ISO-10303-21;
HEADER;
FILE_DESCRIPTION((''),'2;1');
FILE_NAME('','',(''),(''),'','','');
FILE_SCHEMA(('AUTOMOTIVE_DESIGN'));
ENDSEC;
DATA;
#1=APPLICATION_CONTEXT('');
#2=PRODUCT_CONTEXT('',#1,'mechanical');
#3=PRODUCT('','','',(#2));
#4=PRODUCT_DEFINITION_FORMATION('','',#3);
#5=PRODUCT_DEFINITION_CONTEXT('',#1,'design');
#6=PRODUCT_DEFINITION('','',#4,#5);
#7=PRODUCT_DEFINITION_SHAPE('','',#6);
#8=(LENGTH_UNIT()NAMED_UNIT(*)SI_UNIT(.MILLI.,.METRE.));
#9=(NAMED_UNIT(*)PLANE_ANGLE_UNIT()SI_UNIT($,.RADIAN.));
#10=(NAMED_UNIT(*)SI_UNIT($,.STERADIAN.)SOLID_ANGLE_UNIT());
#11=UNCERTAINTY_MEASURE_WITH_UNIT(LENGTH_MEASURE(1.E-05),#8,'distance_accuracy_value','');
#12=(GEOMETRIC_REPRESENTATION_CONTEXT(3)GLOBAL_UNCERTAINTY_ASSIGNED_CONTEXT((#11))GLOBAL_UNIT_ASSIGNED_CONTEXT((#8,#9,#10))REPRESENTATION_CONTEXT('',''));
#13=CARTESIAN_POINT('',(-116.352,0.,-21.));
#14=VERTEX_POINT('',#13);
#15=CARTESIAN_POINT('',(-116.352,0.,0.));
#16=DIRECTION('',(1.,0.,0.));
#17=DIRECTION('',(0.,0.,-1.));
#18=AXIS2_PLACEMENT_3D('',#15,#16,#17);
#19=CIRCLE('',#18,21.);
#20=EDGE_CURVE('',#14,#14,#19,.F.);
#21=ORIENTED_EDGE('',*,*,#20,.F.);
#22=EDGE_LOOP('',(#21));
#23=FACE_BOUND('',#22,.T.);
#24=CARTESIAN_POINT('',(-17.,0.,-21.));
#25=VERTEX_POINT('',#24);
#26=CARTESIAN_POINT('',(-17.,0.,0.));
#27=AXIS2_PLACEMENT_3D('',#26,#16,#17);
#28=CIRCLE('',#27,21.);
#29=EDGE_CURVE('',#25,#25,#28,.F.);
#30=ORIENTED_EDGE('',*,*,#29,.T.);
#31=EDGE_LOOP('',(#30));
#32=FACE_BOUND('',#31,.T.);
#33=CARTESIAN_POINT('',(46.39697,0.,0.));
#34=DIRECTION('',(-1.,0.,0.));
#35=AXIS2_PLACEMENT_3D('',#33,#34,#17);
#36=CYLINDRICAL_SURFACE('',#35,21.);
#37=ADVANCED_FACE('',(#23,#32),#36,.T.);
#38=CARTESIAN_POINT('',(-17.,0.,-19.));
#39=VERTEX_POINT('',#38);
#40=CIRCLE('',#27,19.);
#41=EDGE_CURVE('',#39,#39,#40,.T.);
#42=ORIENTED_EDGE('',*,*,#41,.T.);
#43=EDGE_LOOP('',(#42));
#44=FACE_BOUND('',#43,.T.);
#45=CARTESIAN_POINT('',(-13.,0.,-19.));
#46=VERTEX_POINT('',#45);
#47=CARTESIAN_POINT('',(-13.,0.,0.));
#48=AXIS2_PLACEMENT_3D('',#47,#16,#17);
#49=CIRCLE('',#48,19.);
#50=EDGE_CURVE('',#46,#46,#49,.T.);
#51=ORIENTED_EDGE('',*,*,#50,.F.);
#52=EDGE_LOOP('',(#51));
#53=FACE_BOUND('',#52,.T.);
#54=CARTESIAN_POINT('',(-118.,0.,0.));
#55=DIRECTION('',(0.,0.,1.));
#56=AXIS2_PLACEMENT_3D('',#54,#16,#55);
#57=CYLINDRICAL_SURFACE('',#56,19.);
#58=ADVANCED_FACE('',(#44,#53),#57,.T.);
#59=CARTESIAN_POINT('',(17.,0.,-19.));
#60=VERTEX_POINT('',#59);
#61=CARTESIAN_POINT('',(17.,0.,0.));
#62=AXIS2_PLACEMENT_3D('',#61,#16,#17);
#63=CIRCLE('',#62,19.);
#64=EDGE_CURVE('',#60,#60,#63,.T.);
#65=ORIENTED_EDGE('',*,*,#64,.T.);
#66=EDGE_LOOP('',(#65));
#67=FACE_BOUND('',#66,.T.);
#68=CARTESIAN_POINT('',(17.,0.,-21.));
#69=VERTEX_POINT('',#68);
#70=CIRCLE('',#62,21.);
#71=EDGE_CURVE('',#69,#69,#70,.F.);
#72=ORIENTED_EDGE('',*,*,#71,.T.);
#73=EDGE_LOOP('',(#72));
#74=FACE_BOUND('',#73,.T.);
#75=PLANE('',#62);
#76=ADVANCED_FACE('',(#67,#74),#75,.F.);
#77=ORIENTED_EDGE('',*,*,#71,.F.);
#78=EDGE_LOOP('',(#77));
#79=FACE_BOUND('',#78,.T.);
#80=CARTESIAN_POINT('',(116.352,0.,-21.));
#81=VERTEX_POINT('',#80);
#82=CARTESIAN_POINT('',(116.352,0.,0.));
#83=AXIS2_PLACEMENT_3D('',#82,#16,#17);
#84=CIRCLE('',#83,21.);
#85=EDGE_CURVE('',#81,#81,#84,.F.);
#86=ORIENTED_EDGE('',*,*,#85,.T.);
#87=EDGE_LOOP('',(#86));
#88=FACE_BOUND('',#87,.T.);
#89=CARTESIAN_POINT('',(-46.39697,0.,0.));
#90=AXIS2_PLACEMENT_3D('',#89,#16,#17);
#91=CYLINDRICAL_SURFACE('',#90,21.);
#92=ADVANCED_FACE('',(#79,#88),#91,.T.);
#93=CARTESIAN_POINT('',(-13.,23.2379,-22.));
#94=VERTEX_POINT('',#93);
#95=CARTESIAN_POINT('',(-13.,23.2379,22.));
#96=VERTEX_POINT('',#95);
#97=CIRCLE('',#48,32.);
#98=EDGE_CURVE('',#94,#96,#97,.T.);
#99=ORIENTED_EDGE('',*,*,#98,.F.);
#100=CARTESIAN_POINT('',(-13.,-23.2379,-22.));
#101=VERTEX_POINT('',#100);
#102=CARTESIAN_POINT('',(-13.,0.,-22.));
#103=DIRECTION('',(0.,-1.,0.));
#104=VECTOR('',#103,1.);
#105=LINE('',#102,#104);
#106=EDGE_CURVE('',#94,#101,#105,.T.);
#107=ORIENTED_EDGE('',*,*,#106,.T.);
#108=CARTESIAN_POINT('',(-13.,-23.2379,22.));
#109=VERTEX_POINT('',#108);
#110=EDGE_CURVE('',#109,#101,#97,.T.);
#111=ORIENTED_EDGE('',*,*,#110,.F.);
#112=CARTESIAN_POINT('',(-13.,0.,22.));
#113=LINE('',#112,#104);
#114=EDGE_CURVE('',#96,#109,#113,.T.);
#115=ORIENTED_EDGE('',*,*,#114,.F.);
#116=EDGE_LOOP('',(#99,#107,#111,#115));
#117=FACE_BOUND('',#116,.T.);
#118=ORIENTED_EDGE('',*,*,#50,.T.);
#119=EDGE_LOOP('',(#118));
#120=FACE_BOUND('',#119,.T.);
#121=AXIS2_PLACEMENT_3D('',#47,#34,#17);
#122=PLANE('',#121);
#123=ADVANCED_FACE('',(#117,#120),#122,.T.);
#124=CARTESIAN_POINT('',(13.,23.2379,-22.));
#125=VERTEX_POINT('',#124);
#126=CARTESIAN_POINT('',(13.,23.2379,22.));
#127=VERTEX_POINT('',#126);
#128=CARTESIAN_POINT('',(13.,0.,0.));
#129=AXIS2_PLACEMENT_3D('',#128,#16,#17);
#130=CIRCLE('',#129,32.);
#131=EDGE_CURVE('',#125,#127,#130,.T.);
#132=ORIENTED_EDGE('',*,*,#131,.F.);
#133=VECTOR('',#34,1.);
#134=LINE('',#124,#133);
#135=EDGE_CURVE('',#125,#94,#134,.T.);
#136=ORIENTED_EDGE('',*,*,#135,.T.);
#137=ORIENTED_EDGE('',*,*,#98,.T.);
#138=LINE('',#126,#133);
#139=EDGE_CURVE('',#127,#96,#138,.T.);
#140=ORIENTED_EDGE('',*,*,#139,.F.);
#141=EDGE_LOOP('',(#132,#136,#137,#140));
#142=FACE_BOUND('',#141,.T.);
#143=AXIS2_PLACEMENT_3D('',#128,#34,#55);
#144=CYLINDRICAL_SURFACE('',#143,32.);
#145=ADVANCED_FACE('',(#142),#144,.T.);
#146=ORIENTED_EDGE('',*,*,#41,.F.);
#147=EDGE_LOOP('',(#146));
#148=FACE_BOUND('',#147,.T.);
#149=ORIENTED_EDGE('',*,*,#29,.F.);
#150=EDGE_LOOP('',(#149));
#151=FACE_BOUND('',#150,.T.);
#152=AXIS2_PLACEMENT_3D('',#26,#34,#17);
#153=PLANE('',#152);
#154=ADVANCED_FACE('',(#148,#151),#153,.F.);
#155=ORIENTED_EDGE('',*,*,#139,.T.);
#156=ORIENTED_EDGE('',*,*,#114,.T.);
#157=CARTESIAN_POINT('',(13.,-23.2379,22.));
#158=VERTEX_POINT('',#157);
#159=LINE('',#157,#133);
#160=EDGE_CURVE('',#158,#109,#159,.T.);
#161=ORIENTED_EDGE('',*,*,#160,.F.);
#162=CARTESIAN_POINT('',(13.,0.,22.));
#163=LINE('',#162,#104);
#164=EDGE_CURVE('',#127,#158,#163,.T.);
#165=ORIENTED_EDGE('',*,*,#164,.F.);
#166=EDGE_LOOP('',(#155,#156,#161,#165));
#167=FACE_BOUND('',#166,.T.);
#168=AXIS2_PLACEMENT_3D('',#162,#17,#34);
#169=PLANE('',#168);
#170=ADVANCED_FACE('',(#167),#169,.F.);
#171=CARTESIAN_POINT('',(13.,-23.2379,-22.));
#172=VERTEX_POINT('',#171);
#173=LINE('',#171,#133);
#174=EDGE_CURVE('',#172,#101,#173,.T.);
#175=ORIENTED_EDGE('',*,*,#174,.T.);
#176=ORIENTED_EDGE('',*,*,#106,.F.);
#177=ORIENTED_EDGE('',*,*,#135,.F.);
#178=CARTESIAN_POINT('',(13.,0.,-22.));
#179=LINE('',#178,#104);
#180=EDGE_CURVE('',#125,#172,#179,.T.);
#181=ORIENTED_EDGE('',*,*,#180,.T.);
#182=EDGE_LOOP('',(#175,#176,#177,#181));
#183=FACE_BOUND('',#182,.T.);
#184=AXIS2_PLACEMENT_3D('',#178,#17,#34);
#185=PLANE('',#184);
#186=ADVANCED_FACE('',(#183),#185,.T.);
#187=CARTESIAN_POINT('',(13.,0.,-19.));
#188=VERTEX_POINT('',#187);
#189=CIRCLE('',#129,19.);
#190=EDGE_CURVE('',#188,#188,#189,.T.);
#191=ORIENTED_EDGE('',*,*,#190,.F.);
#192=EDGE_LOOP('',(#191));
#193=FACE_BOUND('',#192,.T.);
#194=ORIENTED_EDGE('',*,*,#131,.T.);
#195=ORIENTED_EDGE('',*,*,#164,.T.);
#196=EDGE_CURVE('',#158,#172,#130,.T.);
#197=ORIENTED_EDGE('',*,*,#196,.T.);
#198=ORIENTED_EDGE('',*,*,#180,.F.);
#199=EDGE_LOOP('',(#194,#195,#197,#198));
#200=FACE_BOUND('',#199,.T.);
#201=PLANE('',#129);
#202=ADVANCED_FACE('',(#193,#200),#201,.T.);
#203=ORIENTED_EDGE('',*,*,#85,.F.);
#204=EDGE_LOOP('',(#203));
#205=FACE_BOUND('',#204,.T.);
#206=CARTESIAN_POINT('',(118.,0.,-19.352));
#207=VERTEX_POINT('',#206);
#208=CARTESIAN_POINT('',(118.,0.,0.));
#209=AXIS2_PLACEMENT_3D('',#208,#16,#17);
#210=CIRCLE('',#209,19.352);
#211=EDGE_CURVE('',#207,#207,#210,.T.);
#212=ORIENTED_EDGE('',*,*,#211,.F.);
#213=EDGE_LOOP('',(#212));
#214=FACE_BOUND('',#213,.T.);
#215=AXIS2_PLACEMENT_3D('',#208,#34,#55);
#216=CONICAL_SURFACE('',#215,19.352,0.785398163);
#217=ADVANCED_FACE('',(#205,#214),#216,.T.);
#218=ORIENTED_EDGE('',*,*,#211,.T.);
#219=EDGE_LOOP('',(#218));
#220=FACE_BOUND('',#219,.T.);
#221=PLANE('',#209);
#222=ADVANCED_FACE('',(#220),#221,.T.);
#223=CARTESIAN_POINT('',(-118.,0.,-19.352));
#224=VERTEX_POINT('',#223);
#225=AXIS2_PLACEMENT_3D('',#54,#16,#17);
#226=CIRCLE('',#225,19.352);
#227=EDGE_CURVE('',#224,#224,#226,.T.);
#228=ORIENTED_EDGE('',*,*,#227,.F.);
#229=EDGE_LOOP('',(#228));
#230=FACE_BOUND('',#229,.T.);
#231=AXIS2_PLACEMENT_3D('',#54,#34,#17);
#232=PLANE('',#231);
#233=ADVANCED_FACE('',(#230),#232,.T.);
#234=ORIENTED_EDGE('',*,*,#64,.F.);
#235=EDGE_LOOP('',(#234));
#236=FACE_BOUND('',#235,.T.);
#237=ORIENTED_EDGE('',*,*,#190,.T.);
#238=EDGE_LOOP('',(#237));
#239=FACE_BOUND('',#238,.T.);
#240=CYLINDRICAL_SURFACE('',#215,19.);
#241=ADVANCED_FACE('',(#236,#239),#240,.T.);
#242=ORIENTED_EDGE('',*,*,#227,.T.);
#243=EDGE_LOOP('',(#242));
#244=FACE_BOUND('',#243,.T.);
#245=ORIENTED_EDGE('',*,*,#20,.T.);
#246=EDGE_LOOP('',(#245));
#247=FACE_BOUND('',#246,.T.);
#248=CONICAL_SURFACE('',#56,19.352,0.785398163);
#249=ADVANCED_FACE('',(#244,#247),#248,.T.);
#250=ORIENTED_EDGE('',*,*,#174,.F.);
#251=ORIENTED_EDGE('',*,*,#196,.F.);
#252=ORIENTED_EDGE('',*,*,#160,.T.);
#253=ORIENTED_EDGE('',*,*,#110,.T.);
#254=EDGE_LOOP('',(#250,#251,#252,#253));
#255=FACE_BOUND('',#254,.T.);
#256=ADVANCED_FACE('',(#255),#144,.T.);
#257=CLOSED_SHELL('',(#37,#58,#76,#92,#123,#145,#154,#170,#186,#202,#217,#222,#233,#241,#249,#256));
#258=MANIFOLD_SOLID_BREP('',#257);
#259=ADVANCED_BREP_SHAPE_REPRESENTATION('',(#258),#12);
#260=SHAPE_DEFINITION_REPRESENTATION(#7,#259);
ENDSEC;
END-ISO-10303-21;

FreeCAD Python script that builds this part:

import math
import FreeCAD as App
import Part
import Sketcher

V = App.Vector
Q = App.Units.Quantity


def edges_at(feature, points):
    """Names of the edges that pass closest to the given points."""
    edges = feature.Shape.Edges
    near = lambda p: min(range(len(edges)), key=lambda i: edges[i].distToShape(Part.Vertex(*p))[0])
    return sorted({f"Edge{near(p) + 1}" for p in points})

doc = App.newDocument("Part")
body = doc.addObject("PartDesign::Body", "Body")

# Sketch on YZ plane
sketch1 = doc.addObject("Sketcher::SketchObject", "Sketch")
body.addObject(sketch1)
sketch1.AttachmentSupport = (doc.YZ_Plane, [""])
sketch1.MapMode = "FlatFace"
sketch1.addGeometry([
    Part.LineSegment(V(-23.2379, -22, 0), V(23.2379, -22, 0)),
    Part.ArcOfCircle(Part.Circle(V(0, 0, 0), V(0, 0, 1), 32), math.radians(-43.432537), math.radians(43.432537)),
    Part.LineSegment(V(23.2379, 22, 0), V(-23.2379, 22, 0)),
    Part.ArcOfCircle(Part.Circle(V(0, 0, 0), V(0, 0, 1), 32), math.radians(136.567463), math.radians(223.432537)),
], False)
sketch1.addConstraint([
    Sketcher.Constraint("Coincident", 0, 2, 1, 1),
    Sketcher.Constraint("Coincident", 1, 2, 2, 1),
    Sketcher.Constraint("Coincident", 2, 2, 3, 1),
    Sketcher.Constraint("Coincident", 3, 2, 0, 1),
    Sketcher.Constraint("Horizontal", 0),
    Sketcher.Constraint("Horizontal", 2),
    Sketcher.Constraint("Coincident", 1, 3, -1, 1),
    Sketcher.Constraint("Coincident", 3, 3, -1, 1),
    Sketcher.Constraint("Equal", 1, 3),
    Sketcher.Constraint("Vertical", 0, 2, 1, 2),
    Sketcher.Constraint("Radius", 1, Q("32 mm")),
    Sketcher.Constraint("DistanceY", 0, 2, -1, 1, Q("22 mm")),
])
pad1 = doc.addObject("PartDesign::Pad", "Pad")
body.addObject(pad1)
pad1.Profile = sketch1
pad1.Length = 13

# Sketch on YZ plane
sketch2 = doc.addObject("Sketcher::SketchObject", "Sketch001")
body.addObject(sketch2)
sketch2.AttachmentSupport = (doc.YZ_Plane, [""])
sketch2.MapMode = "FlatFace"
sketch2.AttachmentOffset = App.Placement(V(0, 0, 13), App.Rotation())
sketch2.addGeometry(Part.Circle(V(0, 0, 0), V(0, 0, 1), 19), False)
sketch2.addConstraint([
    Sketcher.Constraint("Coincident", 0, 3, -1, 1),
    Sketcher.Constraint("Diameter", 0, Q("38 mm")),
])
pad2 = doc.addObject("PartDesign::Pad", "Pad001")
body.addObject(pad2)
pad2.Profile = sketch2
pad2.Length = 105

# Sketch on YZ plane
sketch3 = doc.addObject("Sketcher::SketchObject", "Sketch002")
body.addObject(sketch3)
sketch3.AttachmentSupport = (doc.YZ_Plane, [""])
sketch3.MapMode = "FlatFace"
sketch3.AttachmentOffset = App.Placement(V(0, 0, 118), App.Rotation())
sketch3.addGeometry(Part.Circle(V(0, 0, 0), V(0, 0, 1), 21), False)
sketch3.addConstraint([
    Sketcher.Constraint("Coincident", 0, 3, -1, 1),
    Sketcher.Constraint("Diameter", 0, Q("42 mm")),
])
pad3 = doc.addObject("PartDesign::Pad", "Pad002")
body.addObject(pad3)
pad3.Profile = sketch3
pad3.Length = 101
pad3.Reversed = True
doc.recompute()

chamfer = doc.addObject("PartDesign::Chamfer", "Chamfer")
body.addObject(chamfer)
chamfer.Base = (pad3, edges_at(pad3, [(118, 0, 21)]))
chamfer.Size = 1.648
body2 = doc.addObject("PartDesign::Body", "Body001")
doc.recompute()

body2.BaseFeature = body
doc.recompute()

mirroring = doc.addObject("Part::Mirroring", "Mirroring")
mirroring.Source = body
mirroring.Base = V(0, 0, 0)
mirroring.Normal = V(1, 0, 0)
body3 = doc.addObject("PartDesign::Body", "Body002")
body3.BaseFeature = mirroring
boolean = doc.addObject("PartDesign::Boolean", "Boolean")
body2.addObject(boolean)
boolean.Type = "Fuse"
boolean.addObjects([body3])
doc.recompute()
mirroring.Visibility = False

doc.recompute()
